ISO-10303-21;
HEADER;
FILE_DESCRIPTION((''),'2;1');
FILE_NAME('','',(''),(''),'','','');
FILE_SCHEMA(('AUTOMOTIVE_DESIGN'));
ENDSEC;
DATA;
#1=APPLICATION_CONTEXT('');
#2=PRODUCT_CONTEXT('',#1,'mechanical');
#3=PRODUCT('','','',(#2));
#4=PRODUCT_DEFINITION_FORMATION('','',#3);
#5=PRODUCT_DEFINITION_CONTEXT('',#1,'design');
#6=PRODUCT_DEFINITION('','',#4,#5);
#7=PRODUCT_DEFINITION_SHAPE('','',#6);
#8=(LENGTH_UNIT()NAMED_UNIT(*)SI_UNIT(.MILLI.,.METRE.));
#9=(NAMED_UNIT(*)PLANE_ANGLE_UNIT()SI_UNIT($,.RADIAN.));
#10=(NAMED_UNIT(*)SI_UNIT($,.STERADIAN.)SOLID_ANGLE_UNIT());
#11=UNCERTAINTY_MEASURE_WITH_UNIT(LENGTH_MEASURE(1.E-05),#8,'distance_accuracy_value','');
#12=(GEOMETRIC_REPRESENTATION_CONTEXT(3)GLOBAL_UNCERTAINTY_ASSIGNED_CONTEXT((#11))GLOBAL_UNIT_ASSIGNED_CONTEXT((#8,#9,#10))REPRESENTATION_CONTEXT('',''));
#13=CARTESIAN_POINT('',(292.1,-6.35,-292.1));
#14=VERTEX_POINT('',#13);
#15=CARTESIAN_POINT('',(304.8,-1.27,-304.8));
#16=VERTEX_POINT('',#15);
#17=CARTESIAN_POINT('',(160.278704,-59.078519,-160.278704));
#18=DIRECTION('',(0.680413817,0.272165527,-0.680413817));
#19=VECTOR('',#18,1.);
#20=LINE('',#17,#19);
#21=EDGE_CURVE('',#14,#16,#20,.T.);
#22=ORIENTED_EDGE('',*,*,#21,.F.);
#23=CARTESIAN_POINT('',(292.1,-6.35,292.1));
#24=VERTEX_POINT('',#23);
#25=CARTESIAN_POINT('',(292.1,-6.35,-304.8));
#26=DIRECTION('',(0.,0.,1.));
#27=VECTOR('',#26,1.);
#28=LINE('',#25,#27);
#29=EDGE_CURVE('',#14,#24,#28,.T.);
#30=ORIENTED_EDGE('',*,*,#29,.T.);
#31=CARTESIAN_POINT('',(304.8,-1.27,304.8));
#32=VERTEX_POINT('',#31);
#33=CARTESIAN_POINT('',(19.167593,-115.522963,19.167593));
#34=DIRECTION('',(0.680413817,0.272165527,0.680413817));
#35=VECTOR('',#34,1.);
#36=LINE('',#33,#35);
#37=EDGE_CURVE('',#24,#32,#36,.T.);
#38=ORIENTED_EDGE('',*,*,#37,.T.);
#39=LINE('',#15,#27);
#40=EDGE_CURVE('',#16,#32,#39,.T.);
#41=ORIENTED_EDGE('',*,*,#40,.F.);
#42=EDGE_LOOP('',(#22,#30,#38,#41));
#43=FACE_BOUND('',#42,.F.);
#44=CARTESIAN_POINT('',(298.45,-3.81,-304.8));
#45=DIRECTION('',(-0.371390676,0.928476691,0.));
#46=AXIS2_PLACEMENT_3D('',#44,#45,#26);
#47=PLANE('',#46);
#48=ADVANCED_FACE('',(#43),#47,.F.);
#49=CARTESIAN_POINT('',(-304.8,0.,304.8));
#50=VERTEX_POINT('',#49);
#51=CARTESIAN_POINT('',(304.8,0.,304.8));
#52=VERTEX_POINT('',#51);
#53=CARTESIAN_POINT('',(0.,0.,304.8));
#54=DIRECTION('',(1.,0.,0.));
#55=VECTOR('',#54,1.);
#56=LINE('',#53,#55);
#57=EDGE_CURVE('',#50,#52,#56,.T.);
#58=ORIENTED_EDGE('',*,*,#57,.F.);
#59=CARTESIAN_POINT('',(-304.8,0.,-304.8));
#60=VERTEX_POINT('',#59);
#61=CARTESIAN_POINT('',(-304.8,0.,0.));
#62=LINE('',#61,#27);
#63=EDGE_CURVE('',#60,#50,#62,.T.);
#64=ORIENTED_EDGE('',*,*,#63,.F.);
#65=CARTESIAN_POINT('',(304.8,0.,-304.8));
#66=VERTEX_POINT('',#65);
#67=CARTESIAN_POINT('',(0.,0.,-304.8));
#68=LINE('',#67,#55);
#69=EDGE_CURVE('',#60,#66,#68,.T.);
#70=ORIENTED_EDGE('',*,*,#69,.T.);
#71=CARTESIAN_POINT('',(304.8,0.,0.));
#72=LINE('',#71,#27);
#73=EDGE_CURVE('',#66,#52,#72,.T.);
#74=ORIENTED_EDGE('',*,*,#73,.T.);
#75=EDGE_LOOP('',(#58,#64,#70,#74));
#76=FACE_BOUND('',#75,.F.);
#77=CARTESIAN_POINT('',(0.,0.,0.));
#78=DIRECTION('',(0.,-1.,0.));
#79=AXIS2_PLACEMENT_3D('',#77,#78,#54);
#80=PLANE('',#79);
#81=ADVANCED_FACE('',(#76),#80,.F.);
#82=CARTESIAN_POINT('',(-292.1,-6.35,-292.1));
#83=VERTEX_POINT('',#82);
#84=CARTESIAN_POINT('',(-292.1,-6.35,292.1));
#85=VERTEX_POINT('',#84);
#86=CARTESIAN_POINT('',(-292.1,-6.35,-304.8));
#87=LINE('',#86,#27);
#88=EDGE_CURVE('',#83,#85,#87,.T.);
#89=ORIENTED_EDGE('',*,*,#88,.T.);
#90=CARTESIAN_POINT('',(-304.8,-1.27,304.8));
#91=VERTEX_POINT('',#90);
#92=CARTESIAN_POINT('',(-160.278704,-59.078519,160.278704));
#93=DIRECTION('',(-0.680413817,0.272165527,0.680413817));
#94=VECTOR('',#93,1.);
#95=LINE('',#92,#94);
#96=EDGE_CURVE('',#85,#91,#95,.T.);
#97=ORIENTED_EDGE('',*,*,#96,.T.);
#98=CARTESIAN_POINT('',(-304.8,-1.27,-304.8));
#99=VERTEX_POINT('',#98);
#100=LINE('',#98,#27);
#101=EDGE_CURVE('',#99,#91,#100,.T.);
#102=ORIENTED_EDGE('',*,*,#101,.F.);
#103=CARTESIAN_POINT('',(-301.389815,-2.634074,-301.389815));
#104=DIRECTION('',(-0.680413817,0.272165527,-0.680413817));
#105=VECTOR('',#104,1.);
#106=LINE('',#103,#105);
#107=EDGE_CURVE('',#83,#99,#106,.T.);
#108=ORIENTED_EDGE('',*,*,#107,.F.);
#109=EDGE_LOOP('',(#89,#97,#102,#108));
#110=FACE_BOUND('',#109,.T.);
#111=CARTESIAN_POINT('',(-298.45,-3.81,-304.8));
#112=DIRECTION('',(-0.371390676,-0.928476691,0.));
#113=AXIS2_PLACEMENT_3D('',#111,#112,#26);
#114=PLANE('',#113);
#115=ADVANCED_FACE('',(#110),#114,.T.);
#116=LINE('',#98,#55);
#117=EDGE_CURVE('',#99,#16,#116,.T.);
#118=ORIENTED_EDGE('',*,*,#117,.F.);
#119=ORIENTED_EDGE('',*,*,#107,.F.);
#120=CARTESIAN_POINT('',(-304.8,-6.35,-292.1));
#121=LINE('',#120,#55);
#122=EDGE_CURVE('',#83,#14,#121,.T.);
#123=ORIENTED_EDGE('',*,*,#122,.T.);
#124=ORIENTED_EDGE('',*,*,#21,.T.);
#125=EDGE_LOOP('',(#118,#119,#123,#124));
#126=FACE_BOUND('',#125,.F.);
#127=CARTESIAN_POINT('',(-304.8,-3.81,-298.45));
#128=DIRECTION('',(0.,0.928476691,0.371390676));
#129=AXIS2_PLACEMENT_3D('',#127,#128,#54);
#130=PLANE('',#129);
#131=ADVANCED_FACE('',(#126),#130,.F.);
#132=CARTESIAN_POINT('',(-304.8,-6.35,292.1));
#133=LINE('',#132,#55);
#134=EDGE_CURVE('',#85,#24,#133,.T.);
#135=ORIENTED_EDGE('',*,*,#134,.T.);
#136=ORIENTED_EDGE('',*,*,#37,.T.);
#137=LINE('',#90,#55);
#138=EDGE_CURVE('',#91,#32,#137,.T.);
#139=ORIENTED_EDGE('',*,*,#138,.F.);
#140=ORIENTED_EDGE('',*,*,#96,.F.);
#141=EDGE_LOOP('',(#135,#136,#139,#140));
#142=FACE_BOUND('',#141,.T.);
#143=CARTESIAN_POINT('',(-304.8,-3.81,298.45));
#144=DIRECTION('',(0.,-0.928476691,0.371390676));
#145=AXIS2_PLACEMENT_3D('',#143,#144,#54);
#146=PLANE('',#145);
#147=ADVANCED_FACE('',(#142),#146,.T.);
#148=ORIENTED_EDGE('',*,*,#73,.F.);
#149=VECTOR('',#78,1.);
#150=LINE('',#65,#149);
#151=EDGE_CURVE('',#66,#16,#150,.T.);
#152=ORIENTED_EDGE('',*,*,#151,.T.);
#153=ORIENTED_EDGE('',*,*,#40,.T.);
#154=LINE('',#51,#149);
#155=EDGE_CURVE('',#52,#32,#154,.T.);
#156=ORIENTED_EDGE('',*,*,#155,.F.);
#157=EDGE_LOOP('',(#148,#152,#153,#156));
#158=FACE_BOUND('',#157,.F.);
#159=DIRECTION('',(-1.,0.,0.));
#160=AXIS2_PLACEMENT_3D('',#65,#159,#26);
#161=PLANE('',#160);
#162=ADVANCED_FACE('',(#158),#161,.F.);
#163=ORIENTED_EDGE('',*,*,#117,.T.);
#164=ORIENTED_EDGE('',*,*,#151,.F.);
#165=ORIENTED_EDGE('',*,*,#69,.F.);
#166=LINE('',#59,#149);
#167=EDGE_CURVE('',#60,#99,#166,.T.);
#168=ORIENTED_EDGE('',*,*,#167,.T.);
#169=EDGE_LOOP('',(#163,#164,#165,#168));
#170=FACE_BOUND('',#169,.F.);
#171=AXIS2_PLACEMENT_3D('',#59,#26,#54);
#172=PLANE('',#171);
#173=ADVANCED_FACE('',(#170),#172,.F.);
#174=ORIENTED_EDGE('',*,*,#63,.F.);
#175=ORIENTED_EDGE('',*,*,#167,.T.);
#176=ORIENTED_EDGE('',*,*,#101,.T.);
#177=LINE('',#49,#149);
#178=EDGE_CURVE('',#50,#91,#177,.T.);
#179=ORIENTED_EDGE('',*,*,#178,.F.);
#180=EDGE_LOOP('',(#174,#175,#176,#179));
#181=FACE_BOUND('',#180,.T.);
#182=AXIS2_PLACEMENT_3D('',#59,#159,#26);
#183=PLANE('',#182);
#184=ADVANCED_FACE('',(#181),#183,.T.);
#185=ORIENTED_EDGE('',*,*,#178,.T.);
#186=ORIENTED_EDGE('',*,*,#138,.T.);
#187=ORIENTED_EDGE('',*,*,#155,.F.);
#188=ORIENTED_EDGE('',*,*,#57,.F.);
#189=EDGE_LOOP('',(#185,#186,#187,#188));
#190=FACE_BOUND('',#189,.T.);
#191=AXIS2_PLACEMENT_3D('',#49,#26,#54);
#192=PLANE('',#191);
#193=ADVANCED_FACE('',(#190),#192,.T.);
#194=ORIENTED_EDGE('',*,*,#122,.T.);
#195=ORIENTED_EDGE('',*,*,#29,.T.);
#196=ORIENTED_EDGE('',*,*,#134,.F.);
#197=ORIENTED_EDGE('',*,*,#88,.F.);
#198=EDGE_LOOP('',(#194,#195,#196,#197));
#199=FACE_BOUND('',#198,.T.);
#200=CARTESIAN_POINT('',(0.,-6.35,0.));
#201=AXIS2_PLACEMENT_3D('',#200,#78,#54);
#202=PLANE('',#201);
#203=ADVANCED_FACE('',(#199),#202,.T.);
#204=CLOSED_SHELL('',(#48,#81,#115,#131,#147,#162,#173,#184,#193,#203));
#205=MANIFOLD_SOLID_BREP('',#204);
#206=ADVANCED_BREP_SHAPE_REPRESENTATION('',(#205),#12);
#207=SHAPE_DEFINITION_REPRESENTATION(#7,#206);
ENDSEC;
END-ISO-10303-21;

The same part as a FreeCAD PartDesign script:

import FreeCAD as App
import Part
import Sketcher
from FreeCAD import Vector
Q = App.Units.Quantity


def edges_at(feature, points):
    """Names of the edges that pass closest to the given points."""
    edges = feature.Shape.Edges
    near = lambda p: min(range(len(edges)), key=lambda i: edges[i].distToShape(Part.Vertex(*p))[0])
    return sorted({f"Edge{near(p) + 1}" for p in points})

doc = App.newDocument("Part")
body = doc.addObject("PartDesign::Body", "Body")

sketch1 = body.newObject("Sketcher::SketchObject", "Sketch")
sketch1.AttachmentSupport = (doc.getObject("XZ_Plane"), [""])
sketch1.MapMode = "FlatFace"
sketch1.addGeometry([
    Part.LineSegment(Vector(-304.8, 304.8, 0), Vector(-304.8, -304.8, 0)),
    Part.LineSegment(Vector(-304.8, -304.8, 0), Vector(304.8, -304.8, 0)),
    Part.LineSegment(Vector(304.8, -304.8, 0), Vector(304.8, 304.8, 0)),
    Part.LineSegment(Vector(304.8, 304.8, 0), Vector(-304.8, 304.8, 0)),
], False)
sketch1.addConstraint([
    Sketcher.Constraint("Coincident", 0, 2, 1, 1),
    Sketcher.Constraint("Coincident", 1, 2, 2, 1),
    Sketcher.Constraint("Coincident", 2, 2, 3, 1),
    Sketcher.Constraint("Coincident", 3, 2, 0, 1),
    Sketcher.Constraint("Vertical", 0),
    Sketcher.Constraint("Horizontal", 1),
    Sketcher.Constraint("Vertical", 2),
    Sketcher.Constraint("Horizontal", 3),
    Sketcher.Constraint("Symmetric", 0, 2, 2, 2, -1, 1),
    Sketcher.Constraint("Equal", 3, 0),
    Sketcher.Constraint("DistanceX", 1, 1, 1, 2, Q("24 in")),
])
pad1 = body.newObject("PartDesign::Pad", "Pad")
pad1.Profile = sketch1
pad1.Length = Q("0.25 in")
doc.recompute()

chamfer = body.newObject("PartDesign::Chamfer", "Chamfer")
chamfer.Base = (pad1, edges_at(pad1, [
    (304.8, -6.35, 0),
    (0, -6.35, 304.8),
    (-304.8, -6.35, 0),
    (0, -6.35, -304.8),
]))
chamfer.ChamferType = "Two distances"
chamfer.Size = Q("0.5 in")
chamfer.Size2 = Q("0.2 in")
chamfer.FlipDirection = True

doc.recompute()
